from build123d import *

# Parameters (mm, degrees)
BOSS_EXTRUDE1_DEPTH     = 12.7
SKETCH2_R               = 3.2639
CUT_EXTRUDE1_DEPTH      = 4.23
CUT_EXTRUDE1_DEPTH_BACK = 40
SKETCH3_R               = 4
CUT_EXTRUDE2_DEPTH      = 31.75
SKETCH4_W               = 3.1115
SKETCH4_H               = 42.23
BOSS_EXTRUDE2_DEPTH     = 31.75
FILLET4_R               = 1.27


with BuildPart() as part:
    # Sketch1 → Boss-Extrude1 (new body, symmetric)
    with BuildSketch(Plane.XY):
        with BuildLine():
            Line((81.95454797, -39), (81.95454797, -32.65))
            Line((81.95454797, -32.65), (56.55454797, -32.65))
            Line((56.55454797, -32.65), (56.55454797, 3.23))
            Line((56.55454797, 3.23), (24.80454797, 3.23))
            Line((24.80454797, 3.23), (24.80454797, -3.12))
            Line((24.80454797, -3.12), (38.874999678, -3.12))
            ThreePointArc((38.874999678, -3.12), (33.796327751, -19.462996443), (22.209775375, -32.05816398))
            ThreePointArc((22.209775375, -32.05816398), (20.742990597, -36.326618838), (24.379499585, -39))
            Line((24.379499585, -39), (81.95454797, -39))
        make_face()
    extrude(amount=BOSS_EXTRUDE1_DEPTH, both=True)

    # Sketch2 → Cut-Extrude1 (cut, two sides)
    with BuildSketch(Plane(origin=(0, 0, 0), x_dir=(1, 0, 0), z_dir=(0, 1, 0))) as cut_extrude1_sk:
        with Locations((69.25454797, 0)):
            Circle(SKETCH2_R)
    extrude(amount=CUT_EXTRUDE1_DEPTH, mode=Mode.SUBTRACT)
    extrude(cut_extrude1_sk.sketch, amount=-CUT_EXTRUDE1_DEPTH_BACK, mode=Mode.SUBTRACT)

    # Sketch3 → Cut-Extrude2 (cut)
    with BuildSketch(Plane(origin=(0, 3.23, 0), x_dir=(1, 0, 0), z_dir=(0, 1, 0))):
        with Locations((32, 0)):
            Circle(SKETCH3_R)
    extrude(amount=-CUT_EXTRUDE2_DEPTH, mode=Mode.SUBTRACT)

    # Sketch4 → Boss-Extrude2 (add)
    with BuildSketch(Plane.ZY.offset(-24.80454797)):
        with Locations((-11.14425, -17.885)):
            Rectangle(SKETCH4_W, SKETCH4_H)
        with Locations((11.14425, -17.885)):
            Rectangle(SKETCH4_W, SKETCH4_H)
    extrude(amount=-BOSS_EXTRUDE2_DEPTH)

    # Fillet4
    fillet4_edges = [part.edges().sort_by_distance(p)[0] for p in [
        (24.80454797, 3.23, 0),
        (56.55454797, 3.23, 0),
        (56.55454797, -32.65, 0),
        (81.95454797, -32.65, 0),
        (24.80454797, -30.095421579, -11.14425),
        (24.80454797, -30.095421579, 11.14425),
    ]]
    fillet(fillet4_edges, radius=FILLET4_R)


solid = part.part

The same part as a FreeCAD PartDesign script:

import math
import FreeCAD as App
import Part
import Sketcher
from FreeCAD import Vector
Q = App.Units.Quantity


def edges_at(feature, points):
    """Names of the edges that pass closest to the given points."""
    edges = feature.Shape.Edges
    near = lambda p: min(range(len(edges)), key=lambda i: edges[i].distToShape(Part.Vertex(*p))[0])
    return sorted({f"Edge{near(p) + 1}" for p in points})


def add_polygon(sketch, points):
    """Adds a closed chain of lines whose ends are joined by coincident constraints."""
    first, n = sketch.GeometryCount, len(points)
    for a, b in zip(points, points[1:] + points[:1]):
        sketch.addGeometry(Part.LineSegment(App.Vector(*a, 0), App.Vector(*b, 0)), False)
    for i in range(n):
        sketch.addConstraint(Sketcher.Constraint("Coincident", first + i, 2, first + (i + 1) % n, 1))

doc = App.newDocument("Part")
body = doc.addObject("PartDesign::Body", "Body")

# Sketch on XY plane
sketch1 = body.newObject("Sketcher::SketchObject", "Sketch")
sketch1.AttachmentSupport = (doc.getObject("XY_Plane"), [""])
sketch1.MapMode = "FlatFace"
sketch1.addGeometry(Part.LineSegment(Vector(82, -39, 0), Vector(82, -32.6, 0)), False)
sketch1.addGeometry(Part.LineSegment(Vector(82, -32.6, 0), Vector(56.6, -32.6, 0)), False)
sketch1.addGeometry(Part.LineSegment(Vector(56.6, -32.6, 0), Vector(56.6, 3.2, 0)), False)
sketch1.addGeometry(Part.LineSegment(Vector(56.6, 3.2, 0), Vector(24.8, 3.2, 0)), False)
sketch1.addGeometry(Part.LineSegment(Vector(24.8, 3.2, 0), Vector(24.8, -3.1, 0)), False)
sketch1.addGeometry(Part.LineSegment(Vector(24.8, -3.1, 0), Vector(38.9, -3.1, 0)), False)
sketch1.addGeometry(Part.ArcOfCircle(Part.Circle(Vector(0, 0, 0), Vector(0, 0, 1), 39), math.radians(-55), math.radians(-5)), False)
sketch1.addGeometry(Part.ArcOfCircle(Part.Circle(Vector(24.4, -35.2, 0), Vector(0, 0, 1), 3.8), math.radians(125), math.radians(270)), False)
sketch1.addGeometry(Part.LineSegment(Vector(24.4, -39, 0), Vector(82, -39, 0)), False)
sketch1.addConstraint(Sketcher.Constraint("Coincident", 0, 2, 1, 1))
sketch1.addConstraint(Sketcher.Constraint("Coincident", 1, 2, 2, 1))
sketch1.addConstraint(Sketcher.Constraint("Coincident", 2, 2, 3, 1))
sketch1.addConstraint(Sketcher.Constraint("Coincident", 3, 2, 4, 1))
sketch1.addConstraint(Sketcher.Constraint("Coincident", 4, 2, 5, 1))
sketch1.addConstraint(Sketcher.Constraint("Coincident", 5, 2, 6, 2))
sketch1.addConstraint(Sketcher.Constraint("Tangent", 6, 1, 7, 1))
sketch1.addConstraint(Sketcher.Constraint("Tangent", 7, 2, 8, 1))
sketch1.addConstraint(Sketcher.Constraint("Coincident", 8, 2, 0, 1))
sketch1.addConstraint(Sketcher.Constraint("Vertical", 0))
sketch1.addConstraint(Sketcher.Constraint("Horizontal", 1))
sketch1.addConstraint(Sketcher.Constraint("Vertical", 2))
sketch1.addConstraint(Sketcher.Constraint("Horizontal", 3))
sketch1.addConstraint(Sketcher.Constraint("Vertical", 4))
sketch1.addConstraint(Sketcher.Constraint("Horizontal", 5))
sketch1.addConstraint(Sketcher.Constraint("Horizontal", 8))
sketch1.addConstraint(Sketcher.Constraint("Coincident", 6, 3, -1, 1))
sketch1.addConstraint(Sketcher.Constraint("Equal", 0, 4))
sketch1.addConstraint(Sketcher.Constraint("DistanceX", 1, 2, 1, 1, Q("1 in")))
sketch1.addConstraint(Sketcher.Constraint("Radius", 7, Q("0.15 in")))
sketch1.addConstraint(Sketcher.Constraint("DistanceX", 3, 2, 3, 1, Q("1.25 in")))
sketch1.addConstraint(Sketcher.Constraint("DistanceY", 0, 1, 0, 2, Q("0.25 in")))
sketch1.addConstraint(Sketcher.Constraint("Radius", 6, 39.0))
sketch1.addConstraint(Sketcher.Constraint("DistanceY", 2, 1, 2, 2, 35.88))
sketch1.addConstraint(Sketcher.Constraint("DistanceX", 5, 1, 5, 2, 14.070452))
sketch1.addConstraint(Sketcher.Constraint("DistanceX", 8, 1, 8, 2, 57.575048))
pad1 = body.newObject("PartDesign::Pad", "Pad")
pad1.Profile = sketch1
pad1.Length = Q("1 in")
pad1.Midplane = True

# Sketch on XZ plane
sketch2 = body.newObject("Sketcher::SketchObject", "Sketch001")
sketch2.AttachmentSupport = (doc.getObject("XZ_Plane"), [""])
sketch2.MapMode = "FlatFace"
sketch2.addGeometry(Part.Circle(Vector(69.3, 0, 0), Vector(0, 0, 1), 3.3), False)
sketch2.addConstraint(Sketcher.Constraint("PointOnObject", 0, 3, -1))
sketch2.addConstraint(Sketcher.Constraint("Diameter", 0, Q("0.257 in")))
sketch2.addConstraint(Sketcher.Constraint("DistanceX", -1, 1, 0, 3, 69.254548))
pocket1 = body.newObject("PartDesign::Pocket", "Pocket")
pocket1.Profile = sketch2
pocket1.Type = "ThroughAll"
pocket1.Midplane = True

# Sketch on XZ plane
sketch3 = body.newObject("Sketcher::SketchObject", "Sketch002")
sketch3.AttachmentSupport = (doc.getObject("XZ_Plane"), [""])
sketch3.MapMode = "FlatFace"
sketch3.AttachmentOffset = App.Placement(Vector(0, 0, -3.23), App.Rotation())
sketch3.addGeometry(Part.Circle(Vector(32, 0, 0), Vector(0, 0, 1), 4), False)
sketch3.addConstraint(Sketcher.Constraint("PointOnObject", 0, 3, -1))
sketch3.addConstraint(Sketcher.Constraint("Diameter", 0, 8.0))
sketch3.addConstraint(Sketcher.Constraint("DistanceX", -1, 1, 0, 3, 32.0))
pocket2 = body.newObject("PartDesign::Pocket", "Pocket001")
pocket2.Profile = sketch3
pocket2.Length = Q("1.25 in")
pocket2.Reversed = True

# Sketch on YZ plane
sketch4 = body.newObject("Sketcher::SketchObject", "Sketch003")
sketch4.AttachmentSupport = (doc.getObject("YZ_Plane"), [""])
sketch4.MapMode = "FlatFace"
sketch4.AttachmentOffset = App.Placement(Vector(0, 0, 24.804548), App.Rotation())
add_polygon(sketch4, [(3.2, -12.7), (-39, -12.7), (-39, -9.6), (3.2, -9.6)])  # lines 0-3
add_polygon(sketch4, [(3.2, 9.6), (-39, 9.6), (-39, 12.7), (3.2, 12.7)])  # lines 4-7
sketch4.addConstraint(Sketcher.Constraint("Horizontal", 0))
sketch4.addConstraint(Sketcher.Constraint("Vertical", 1))
sketch4.addConstraint(Sketcher.Constraint("Horizontal", 2))
sketch4.addConstraint(Sketcher.Constraint("Vertical", 3))
sketch4.addConstraint(Sketcher.Constraint("Horizontal", 4))
sketch4.addConstraint(Sketcher.Constraint("Vertical", 5))
sketch4.addConstraint(Sketcher.Constraint("Horizontal", 6))
sketch4.addConstraint(Sketcher.Constraint("Vertical", 7))
sketch4.addConstraint(Sketcher.Constraint("Symmetric", 1, 2, 4, 2, -1))
sketch4.addConstraint(Sketcher.Constraint("Symmetric", 3, 2, 6, 2, -1))
sketch4.addConstraint(Sketcher.Constraint("DistanceY", 0, 2, 5, 2, Q("1 in")))
sketch4.addConstraint(Sketcher.Constraint("DistanceY", 1, 1, 1, 2, Q("0.1225 in")))
sketch4.addConstraint(Sketcher.Constraint("DistanceX", 0, 2, 0, 1, 42.23))
sketch4.addConstraint(Sketcher.Constraint("DistanceX", 0, 2, -1, 1, 39.0))
pad2 = body.newObject("PartDesign::Pad", "Pad001")
pad2.Profile = sketch4
pad2.Length = Q("1.25 in")
doc.recompute()

fillet = body.newObject("PartDesign::Fillet", "Fillet")
fillet.Base = (pad2, edges_at(pad2, [
    (24.805, 3.23, 0),
    (56.555, 3.23, 0),
    (56.555, -32.65, 0),
    (81.955, -32.65, 0),
    (24.805, -30.095, -11.144),
    (24.805, -30.095, 11.144),
]))
fillet.Radius = Q("0.05 in")

doc.recompute()
